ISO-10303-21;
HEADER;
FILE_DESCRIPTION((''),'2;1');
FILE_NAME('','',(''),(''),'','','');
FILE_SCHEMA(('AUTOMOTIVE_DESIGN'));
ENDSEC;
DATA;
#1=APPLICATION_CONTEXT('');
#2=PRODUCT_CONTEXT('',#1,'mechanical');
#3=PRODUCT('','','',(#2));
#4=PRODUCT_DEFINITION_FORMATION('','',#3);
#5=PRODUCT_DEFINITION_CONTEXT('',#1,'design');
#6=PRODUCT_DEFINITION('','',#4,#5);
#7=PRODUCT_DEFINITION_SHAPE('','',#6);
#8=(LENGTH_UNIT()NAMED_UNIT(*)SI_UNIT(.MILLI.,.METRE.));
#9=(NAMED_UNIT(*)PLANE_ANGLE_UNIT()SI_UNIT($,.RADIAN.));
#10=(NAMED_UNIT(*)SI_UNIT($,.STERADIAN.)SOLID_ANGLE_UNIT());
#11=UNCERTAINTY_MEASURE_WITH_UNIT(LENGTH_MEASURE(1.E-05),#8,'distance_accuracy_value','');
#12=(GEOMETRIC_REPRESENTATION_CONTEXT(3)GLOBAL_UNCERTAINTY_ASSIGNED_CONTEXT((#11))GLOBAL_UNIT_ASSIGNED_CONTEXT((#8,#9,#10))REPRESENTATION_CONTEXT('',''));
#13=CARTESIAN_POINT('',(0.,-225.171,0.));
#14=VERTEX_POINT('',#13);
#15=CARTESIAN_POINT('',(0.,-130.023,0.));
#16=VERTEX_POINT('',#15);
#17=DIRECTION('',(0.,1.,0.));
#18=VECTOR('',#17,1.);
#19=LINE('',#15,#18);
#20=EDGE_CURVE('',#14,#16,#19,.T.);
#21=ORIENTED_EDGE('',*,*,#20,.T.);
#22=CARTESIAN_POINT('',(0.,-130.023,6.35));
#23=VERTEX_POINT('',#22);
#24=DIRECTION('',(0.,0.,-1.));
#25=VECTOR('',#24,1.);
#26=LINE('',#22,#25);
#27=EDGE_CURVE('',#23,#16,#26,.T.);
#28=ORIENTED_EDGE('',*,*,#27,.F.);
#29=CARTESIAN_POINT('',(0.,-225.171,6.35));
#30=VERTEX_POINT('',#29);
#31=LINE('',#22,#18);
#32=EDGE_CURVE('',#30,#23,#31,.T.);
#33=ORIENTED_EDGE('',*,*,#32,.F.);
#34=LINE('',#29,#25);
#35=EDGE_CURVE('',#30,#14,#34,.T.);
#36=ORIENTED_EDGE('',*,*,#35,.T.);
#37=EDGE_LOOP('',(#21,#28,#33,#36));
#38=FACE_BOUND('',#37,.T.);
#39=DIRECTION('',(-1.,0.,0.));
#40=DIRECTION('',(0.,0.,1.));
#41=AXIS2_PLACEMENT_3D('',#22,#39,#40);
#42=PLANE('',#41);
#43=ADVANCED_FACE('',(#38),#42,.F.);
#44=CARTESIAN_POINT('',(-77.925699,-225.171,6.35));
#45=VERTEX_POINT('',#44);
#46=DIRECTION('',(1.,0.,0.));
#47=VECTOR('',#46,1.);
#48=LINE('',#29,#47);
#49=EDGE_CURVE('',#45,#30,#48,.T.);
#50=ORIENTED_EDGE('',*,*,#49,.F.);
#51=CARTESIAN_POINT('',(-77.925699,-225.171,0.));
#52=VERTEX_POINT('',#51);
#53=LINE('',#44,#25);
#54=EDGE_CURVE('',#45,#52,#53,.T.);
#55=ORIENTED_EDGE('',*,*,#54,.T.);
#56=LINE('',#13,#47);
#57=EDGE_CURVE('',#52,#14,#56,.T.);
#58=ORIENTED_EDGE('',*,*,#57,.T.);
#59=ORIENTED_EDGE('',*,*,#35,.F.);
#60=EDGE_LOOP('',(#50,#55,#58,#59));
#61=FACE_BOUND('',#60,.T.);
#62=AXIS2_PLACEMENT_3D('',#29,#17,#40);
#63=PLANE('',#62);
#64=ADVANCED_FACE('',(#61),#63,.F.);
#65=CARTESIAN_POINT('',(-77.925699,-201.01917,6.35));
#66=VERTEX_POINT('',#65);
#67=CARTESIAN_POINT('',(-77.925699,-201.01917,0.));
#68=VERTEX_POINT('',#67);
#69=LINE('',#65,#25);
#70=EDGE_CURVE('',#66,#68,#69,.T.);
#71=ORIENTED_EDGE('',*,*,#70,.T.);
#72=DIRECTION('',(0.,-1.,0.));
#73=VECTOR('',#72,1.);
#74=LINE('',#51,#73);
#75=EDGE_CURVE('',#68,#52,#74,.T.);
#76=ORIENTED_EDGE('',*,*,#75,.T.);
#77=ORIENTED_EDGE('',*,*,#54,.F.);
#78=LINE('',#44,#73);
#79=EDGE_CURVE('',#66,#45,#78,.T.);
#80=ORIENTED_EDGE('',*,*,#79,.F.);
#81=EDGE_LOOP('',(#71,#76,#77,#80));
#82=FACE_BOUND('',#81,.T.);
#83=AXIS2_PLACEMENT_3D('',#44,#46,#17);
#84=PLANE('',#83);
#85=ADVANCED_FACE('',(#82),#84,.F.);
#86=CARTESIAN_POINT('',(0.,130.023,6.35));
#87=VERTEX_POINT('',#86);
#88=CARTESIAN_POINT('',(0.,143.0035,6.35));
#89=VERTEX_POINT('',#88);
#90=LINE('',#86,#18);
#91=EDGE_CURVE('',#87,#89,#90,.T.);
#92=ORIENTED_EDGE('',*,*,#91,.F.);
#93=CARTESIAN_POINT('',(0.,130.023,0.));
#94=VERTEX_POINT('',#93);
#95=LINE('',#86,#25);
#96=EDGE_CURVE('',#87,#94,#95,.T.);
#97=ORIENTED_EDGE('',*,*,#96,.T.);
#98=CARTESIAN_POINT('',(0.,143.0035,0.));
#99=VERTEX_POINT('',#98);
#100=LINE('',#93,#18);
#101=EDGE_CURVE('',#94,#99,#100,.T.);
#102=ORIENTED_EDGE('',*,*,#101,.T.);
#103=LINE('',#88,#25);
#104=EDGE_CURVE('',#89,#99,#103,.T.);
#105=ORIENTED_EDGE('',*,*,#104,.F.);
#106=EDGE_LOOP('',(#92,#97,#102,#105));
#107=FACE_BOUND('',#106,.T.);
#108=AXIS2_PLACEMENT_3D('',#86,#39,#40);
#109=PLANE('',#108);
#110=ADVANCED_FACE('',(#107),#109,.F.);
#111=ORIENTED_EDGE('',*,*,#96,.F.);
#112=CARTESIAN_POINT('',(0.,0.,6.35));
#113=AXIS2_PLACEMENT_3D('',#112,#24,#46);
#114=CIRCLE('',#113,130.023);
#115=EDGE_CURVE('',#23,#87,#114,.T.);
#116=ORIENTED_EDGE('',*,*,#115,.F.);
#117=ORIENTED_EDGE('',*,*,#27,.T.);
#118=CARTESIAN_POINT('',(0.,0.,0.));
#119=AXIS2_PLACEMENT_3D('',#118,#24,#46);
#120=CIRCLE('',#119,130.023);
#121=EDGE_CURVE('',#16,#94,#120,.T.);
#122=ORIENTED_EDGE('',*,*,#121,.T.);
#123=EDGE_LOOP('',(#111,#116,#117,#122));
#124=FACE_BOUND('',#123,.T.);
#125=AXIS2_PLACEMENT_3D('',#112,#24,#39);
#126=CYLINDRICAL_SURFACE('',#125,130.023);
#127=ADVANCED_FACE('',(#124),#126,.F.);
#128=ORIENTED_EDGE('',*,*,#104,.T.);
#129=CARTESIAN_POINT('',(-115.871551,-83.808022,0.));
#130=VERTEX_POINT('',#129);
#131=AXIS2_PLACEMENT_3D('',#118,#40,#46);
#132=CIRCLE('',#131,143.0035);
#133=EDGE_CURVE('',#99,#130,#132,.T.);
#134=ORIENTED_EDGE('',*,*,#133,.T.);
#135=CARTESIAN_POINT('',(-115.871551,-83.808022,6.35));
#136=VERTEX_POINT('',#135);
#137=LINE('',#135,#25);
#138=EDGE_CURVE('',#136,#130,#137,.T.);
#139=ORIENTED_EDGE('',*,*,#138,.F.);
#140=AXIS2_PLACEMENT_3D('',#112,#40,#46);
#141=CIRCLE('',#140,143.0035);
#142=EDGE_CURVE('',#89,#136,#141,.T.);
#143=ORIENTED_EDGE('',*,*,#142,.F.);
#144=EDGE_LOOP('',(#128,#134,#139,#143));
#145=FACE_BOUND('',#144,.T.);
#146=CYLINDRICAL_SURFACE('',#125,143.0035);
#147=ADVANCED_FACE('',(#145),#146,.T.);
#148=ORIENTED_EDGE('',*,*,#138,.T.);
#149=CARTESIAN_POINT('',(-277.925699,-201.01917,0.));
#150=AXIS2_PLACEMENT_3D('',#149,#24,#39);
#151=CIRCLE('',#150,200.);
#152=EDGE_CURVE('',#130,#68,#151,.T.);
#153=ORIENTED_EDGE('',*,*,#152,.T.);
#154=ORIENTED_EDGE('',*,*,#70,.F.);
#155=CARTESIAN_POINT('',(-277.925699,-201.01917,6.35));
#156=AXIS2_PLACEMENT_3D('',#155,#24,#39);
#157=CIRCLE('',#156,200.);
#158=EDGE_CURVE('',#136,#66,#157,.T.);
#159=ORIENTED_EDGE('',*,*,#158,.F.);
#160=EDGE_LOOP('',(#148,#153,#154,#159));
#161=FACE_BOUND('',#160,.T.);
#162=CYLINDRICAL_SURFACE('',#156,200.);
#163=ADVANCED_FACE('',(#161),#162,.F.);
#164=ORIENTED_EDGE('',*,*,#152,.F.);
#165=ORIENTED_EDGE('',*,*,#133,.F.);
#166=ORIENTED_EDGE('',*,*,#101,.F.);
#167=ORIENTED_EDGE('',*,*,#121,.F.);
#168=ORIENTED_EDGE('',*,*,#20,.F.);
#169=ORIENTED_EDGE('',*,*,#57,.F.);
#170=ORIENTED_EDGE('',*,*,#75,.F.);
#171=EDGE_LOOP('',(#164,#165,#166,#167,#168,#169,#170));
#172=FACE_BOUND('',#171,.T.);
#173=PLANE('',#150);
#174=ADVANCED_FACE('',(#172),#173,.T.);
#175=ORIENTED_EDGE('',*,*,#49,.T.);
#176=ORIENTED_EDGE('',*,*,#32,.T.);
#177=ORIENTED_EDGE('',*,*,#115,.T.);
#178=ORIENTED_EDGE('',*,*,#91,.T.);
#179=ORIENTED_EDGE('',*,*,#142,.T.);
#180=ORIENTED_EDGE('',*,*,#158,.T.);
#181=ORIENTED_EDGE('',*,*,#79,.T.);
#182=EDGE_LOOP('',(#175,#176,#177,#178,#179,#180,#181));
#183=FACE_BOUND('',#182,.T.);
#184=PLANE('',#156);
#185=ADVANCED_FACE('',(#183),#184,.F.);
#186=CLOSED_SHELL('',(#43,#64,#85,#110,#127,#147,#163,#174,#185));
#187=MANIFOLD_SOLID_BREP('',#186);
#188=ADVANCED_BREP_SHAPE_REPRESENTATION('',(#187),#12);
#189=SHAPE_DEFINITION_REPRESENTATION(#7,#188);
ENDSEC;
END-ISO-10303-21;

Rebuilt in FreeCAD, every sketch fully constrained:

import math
import FreeCAD as App
import Part
import Sketcher

V = App.Vector
Q = App.Units.Quantity

doc = App.newDocument("Part")
body = doc.addObject("PartDesign::Body", "Body")

sketch1 = body.newObject("Sketcher::SketchObject", "Sketch")
sketch1.AttachmentSupport = (doc.getObject("XY_Plane"), [""])
sketch1.MapMode = "FlatFace"
sketch1.addGeometry(Part.LineSegment(V(0, 130, 0), V(0, 143, 0)), False)
sketch1.addGeometry(Part.ArcOfCircle(Part.Circle(V(0, 0, 0), V(0, 0, 1), 143), math.radians(90), math.radians(216)), False)
sketch1.addGeometry(Part.ArcOfCircle(Part.Circle(V(-278, -201, 0), V(0, 0, 1), 200), math.radians(0), math.radians(36)), False)
sketch1.addGeometry(Part.LineSegment(V(-78, -201, 0), V(-78, -225, 0)), False)
sketch1.addGeometry(Part.LineSegment(V(-78, -225, 0), V(0, -225, 0)), False)
sketch1.addGeometry(Part.LineSegment(V(0, -225, 0), V(0, -130, 0)), False)
sketch1.addGeometry(Part.ArcOfCircle(Part.Circle(V(0, 0, 0), V(0, 0, 1), 130), math.radians(90), math.radians(270)), False)
sketch1.addConstraint(Sketcher.Constraint("Coincident", 0, 2, 1, 1))
sketch1.addConstraint(Sketcher.Constraint("Tangent", 1, 2, 2, 2))
sketch1.addConstraint(Sketcher.Constraint("Tangent", 2, 1, 3, 1))
sketch1.addConstraint(Sketcher.Constraint("Coincident", 3, 2, 4, 1))
sketch1.addConstraint(Sketcher.Constraint("Coincident", 4, 2, 5, 1))
sketch1.addConstraint(Sketcher.Constraint("Coincident", 5, 2, 6, 2))
sketch1.addConstraint(Sketcher.Constraint("Coincident", 6, 1, 0, 1))
sketch1.addConstraint(Sketcher.Constraint("Vertical", 0))
sketch1.addConstraint(Sketcher.Constraint("Vertical", 3))
sketch1.addConstraint(Sketcher.Constraint("Horizontal", 4))
sketch1.addConstraint(Sketcher.Constraint("Vertical", 5))
sketch1.addConstraint(Sketcher.Constraint("Coincident", 1, 3, -1, 1))
sketch1.addConstraint(Sketcher.Constraint("Coincident", 6, 3, -1, 1))
sketch1.addConstraint(Sketcher.Constraint("PointOnObject", 0, 2, -2))
sketch1.addConstraint(Sketcher.Constraint("PointOnObject", 4, 2, -2))
sketch1.addConstraint(Sketcher.Constraint("Radius", 2, Q("200 mm")))
sketch1.addConstraint(Sketcher.Constraint("Radius", 6, Q("130.023 mm")))
sketch1.addConstraint(Sketcher.Constraint("Radius", 1, Q("143.0035 mm")))
sketch1.addConstraint(Sketcher.Constraint("DistanceY", 5, 1, 5, 2, Q("95.148 mm")))
sketch1.addConstraint(Sketcher.Constraint("DistanceX", 4, 1, 4, 2, Q("77.925699 mm")))
pad1 = body.newObject("PartDesign::Pad", "Pad")
pad1.Profile = sketch1
pad1.Length = 6.35

doc.recompute()
